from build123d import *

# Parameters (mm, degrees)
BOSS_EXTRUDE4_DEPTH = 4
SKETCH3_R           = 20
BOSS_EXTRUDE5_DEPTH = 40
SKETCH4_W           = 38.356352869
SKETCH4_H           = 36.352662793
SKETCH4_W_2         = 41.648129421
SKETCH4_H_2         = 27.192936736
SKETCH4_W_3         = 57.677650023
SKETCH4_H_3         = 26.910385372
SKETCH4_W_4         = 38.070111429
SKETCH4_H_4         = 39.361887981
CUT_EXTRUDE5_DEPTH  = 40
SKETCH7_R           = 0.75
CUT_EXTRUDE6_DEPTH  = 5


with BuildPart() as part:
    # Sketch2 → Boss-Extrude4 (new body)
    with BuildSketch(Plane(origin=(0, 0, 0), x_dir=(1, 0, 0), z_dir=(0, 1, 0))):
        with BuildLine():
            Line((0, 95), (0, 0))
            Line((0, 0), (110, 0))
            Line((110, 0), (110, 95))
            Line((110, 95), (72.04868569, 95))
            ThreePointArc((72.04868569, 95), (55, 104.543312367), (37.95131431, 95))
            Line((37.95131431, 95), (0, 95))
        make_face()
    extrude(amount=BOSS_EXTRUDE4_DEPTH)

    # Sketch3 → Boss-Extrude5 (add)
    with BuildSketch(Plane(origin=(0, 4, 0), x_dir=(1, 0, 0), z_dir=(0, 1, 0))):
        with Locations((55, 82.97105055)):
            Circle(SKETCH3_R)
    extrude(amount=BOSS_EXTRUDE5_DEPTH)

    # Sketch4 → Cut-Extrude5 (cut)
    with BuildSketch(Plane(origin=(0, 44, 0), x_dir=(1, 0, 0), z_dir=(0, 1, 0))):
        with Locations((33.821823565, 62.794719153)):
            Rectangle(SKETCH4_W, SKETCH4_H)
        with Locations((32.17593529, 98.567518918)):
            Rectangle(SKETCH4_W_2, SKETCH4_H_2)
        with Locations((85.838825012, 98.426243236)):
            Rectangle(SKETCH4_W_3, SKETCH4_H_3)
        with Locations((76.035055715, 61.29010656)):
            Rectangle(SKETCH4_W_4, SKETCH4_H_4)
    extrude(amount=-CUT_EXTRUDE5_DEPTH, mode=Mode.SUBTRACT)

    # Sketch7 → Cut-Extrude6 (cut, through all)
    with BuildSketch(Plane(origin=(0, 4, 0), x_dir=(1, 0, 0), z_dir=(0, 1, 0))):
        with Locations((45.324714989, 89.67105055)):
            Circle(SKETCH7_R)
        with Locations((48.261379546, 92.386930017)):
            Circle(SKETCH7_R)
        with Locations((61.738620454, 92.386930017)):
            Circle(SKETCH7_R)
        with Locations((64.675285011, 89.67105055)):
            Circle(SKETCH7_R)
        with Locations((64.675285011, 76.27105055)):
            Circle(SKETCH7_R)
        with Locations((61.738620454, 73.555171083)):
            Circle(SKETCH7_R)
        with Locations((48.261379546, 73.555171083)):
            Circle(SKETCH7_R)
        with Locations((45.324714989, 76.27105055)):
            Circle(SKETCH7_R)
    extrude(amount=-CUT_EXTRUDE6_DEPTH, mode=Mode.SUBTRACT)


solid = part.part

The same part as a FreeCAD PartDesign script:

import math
import FreeCAD as App
import Part
import Sketcher

V = App.Vector

doc = App.newDocument("Part")
body = doc.addObject("PartDesign::Body", "Body")

# Sketch on XZ plane
sketch1 = body.newObject("Sketcher::SketchObject", "Sketch")
sketch1.AttachmentSupport = (doc.getObject("XZ_Plane"), [""])
sketch1.MapMode = "FlatFace"
sketch1.addGeometry([
    Part.LineSegment(V(0, -95, 0), V(0, 0, 0)),  # 0
    Part.LineSegment(V(0, 0, 0), V(110, 0, 0)),  # 1
    Part.LineSegment(V(110, 0, 0), V(110, -95, 0)),  # 2
    Part.LineSegment(V(110, -95, 0), V(72, -95, 0)),  # 3
    Part.ArcOfCircle(Part.Circle(V(55, -85, 0), V(0, 0, 1), 20), math.radians(-148), math.radians(-32)),  # 4
    Part.LineSegment(V(38, -95, 0), V(0, -95, 0)),  # 5
], False)
sketch1.addConstraint([
    Sketcher.Constraint("Coincident", 0, 2, 1, 1),
    Sketcher.Constraint("Coincident", 1, 2, 2, 1),
    Sketcher.Constraint("Coincident", 2, 2, 3, 1),
    Sketcher.Constraint("Coincident", 3, 2, 4, 2),
    Sketcher.Constraint("Coincident", 4, 1, 5, 1),
    Sketcher.Constraint("Coincident", 5, 2, 0, 1),
    Sketcher.Constraint("Vertical", 0),
    Sketcher.Constraint("Horizontal", 1),
    Sketcher.Constraint("Vertical", 2),
    Sketcher.Constraint("Horizontal", 3),
    Sketcher.Constraint("Horizontal", 5),
    Sketcher.Constraint("Coincident", 0, 2, -1, 1),
    Sketcher.Constraint("Horizontal", 3, 2, 4, 1),
    Sketcher.Constraint("Equal", 3, 5),
    Sketcher.Constraint("Radius", 4, 20.0),
    Sketcher.Constraint("DistanceX", 1, 1, 1, 2, 110.0),
    Sketcher.Constraint("DistanceY", 0, 1, 0, 2, 95.0),
    Sketcher.Constraint("DistanceX", 3, 2, 3, 1, 37.951314),
])
pad1 = body.newObject("PartDesign::Pad", "Pad")
pad1.Profile = sketch1
pad1.Length = 4
pad1.Reversed = True

# Sketch on XZ plane
sketch2 = body.newObject("Sketcher::SketchObject", "Sketch001")
sketch2.AttachmentSupport = (doc.getObject("XZ_Plane"), [""])
sketch2.MapMode = "FlatFace"
sketch2.AttachmentOffset = App.Placement(V(0, 0, -4), App.Rotation())
sketch2.addGeometry(Part.Circle(V(55, -83, 0), V(0, 0, 1), 20), False)
sketch2.addConstraint([
    Sketcher.Constraint("Diameter", 0, 40.0),
    Sketcher.Constraint("DistanceX", -1, 1, 0, 3, 55.0),
    Sketcher.Constraint("DistanceY", 0, 3, -1, 1, 82.971051),
])
pad2 = body.newObject("PartDesign::Pad", "Pad001")
pad2.Profile = sketch2
pad2.Length = 40
pad2.Reversed = True

# Sketch on XZ plane
sketch3 = body.newObject("Sketcher::SketchObject", "Sketch002")
sketch3.AttachmentSupport = (doc.getObject("XZ_Plane"), [""])
sketch3.MapMode = "FlatFace"
sketch3.AttachmentOffset = App.Placement(V(0, 0, -44), App.Rotation())
sketch3.addGeometry([
    Part.LineSegment(V(15, -81, 0), V(15, -45, 0)),  # 0
    Part.LineSegment(V(15, -45, 0), V(53, -45, 0)),  # 1
    Part.LineSegment(V(53, -45, 0), V(53, -81, 0)),  # 2
    Part.LineSegment(V(53, -81, 0), V(15, -81, 0)),  # 3
    Part.LineSegment(V(11, -112, 0), V(11, -85, 0)),  # 4
    Part.LineSegment(V(11, -85, 0), V(53, -85, 0)),  # 5
    Part.LineSegment(V(53, -85, 0), V(53, -112, 0)),  # 6
    Part.LineSegment(V(53, -112, 0), V(11, -112, 0)),  # 7
    Part.LineSegment(V(57, -112, 0), V(57, -85, 0)),  # 8
    Part.LineSegment(V(57, -85, 0), V(115, -85, 0)),  # 9
    Part.LineSegment(V(115, -85, 0), V(115, -112, 0)),  # 10
    Part.LineSegment(V(115, -112, 0), V(57, -112, 0)),  # 11
    Part.LineSegment(V(57, -81, 0), V(57, -42, 0)),  # 12
    Part.LineSegment(V(57, -42, 0), V(95, -42, 0)),  # 13
    Part.LineSegment(V(95, -42, 0), V(95, -81, 0)),  # 14
    Part.LineSegment(V(95, -81, 0), V(57, -81, 0)),  # 15
], False)
sketch3.addConstraint([
    Sketcher.Constraint("Coincident", 0, 2, 1, 1),
    Sketcher.Constraint("Coincident", 1, 2, 2, 1),
    Sketcher.Constraint("Coincident", 2, 2, 3, 1),
    Sketcher.Constraint("Coincident", 3, 2, 0, 1),
    Sketcher.Constraint("Coincident", 4, 2, 5, 1),
    Sketcher.Constraint("Coincident", 5, 2, 6, 1),
    Sketcher.Constraint("Coincident", 6, 2, 7, 1),
    Sketcher.Constraint("Coincident", 7, 2, 4, 1),
    Sketcher.Constraint("Coincident", 8, 2, 9, 1),
    Sketcher.Constraint("Coincident", 9, 2, 10, 1),
    Sketcher.Constraint("Coincident", 10, 2, 11, 1),
    Sketcher.Constraint("Coincident", 11, 2, 8, 1),
    Sketcher.Constraint("Coincident", 12, 2, 13, 1),
    Sketcher.Constraint("Coincident", 13, 2, 14, 1),
    Sketcher.Constraint("Coincident", 14, 2, 15, 1),
    Sketcher.Constraint("Coincident", 15, 2, 12, 1),
    Sketcher.Constraint("Vertical", 0),
    Sketcher.Constraint("Horizontal", 1),
    Sketcher.Constraint("Vertical", 2),
    Sketcher.Constraint("Horizontal", 3),
    Sketcher.Constraint("Vertical", 4),
    Sketcher.Constraint("Horizontal", 5),
    Sketcher.Constraint("Vertical", 6),
    Sketcher.Constraint("Horizontal", 7),
    Sketcher.Constraint("Vertical", 8),
    Sketcher.Constraint("Horizontal", 9),
    Sketcher.Constraint("Vertical", 10),
    Sketcher.Constraint("Horizontal", 11),
    Sketcher.Constraint("Vertical", 12),
    Sketcher.Constraint("Horizontal", 13),
    Sketcher.Constraint("Vertical", 14),
    Sketcher.Constraint("Horizontal", 15),
    Sketcher.Constraint("Horizontal", 5, 2, 8, 2),
    Sketcher.Constraint("Horizontal", 3, 2, 14, 2),
    Sketcher.Constraint("Vertical", 2, 2, 5, 2),
    Sketcher.Constraint("Vertical", 11, 2, 12, 2),
    Sketcher.Constraint("DistanceX", -1, 1, 1, 2, 53.0),
    Sketcher.Constraint("DistanceX", -1, 1, 8, 2, 57.0),
    Sketcher.Constraint("DistanceY", 4, 2, 3, 2, 4.0),
    Sketcher.Constraint("DistanceX", 5, 1, 5, 2, 41.648129),
    Sketcher.Constraint("DistanceX", 9, 1, 9, 2, 57.67765),
    Sketcher.Constraint("DistanceX", 13, 1, 13, 2, 38.070111),
    Sketcher.Constraint("DistanceY", 6, 2, 1, 2, 67.5456),
    Sketcher.Constraint("DistanceX", 1, 1, 1, 2, 38.356353),
    Sketcher.Constraint("DistanceY", 0, 1, 0, 2, 36.352663),
    Sketcher.Constraint("DistanceY", 8, 1, 8, 2, 26.910385),
    Sketcher.Constraint("DistanceY", 12, 1, 12, 2, 39.361888),
    Sketcher.Constraint("DistanceY", 2, 2, -1, 1, 80.971051),
])
pocket1 = body.newObject("PartDesign::Pocket", "Pocket")
pocket1.Profile = sketch3
pocket1.Length = 40
pocket1.Reversed = True

# Sketch on XZ plane
sketch4 = body.newObject("Sketcher::SketchObject", "Sketch003")
sketch4.AttachmentSupport = (doc.getObject("XZ_Plane"), [""])
sketch4.MapMode = "FlatFace"
sketch4.AttachmentOffset = App.Placement(V(0, 0, -4), App.Rotation())
sketch4.addGeometry([
    Part.Circle(V(45.3, -89.7, 0), V(0, 0, 1), 0.8),  # 0
    Part.Circle(V(48.3, -92.4, 0), V(0, 0, 1), 0.8),  # 1
    Part.Circle(V(61.7, -92.4, 0), V(0, 0, 1), 0.8),  # 2
    Part.Circle(V(64.7, -89.7, 0), V(0, 0, 1), 0.8),  # 3
    Part.Circle(V(64.7, -76.3, 0), V(0, 0, 1), 0.8),  # 4
    Part.Circle(V(61.7, -73.6, 0), V(0, 0, 1), 0.8),  # 5
    Part.Circle(V(48.3, -73.6, 0), V(0, 0, 1), 0.8),  # 6
    Part.Circle(V(45.3, -76.3, 0), V(0, 0, 1), 0.8),  # 7
], False)
sketch4.addConstraint([
    Sketcher.Constraint("Equal", 0, 1),
    Sketcher.Constraint("Equal", 1, 2),
    Sketcher.Constraint("Equal", 2, 3),
    Sketcher.Constraint("Equal", 3, 4),
    Sketcher.Constraint("Equal", 4, 5),
    Sketcher.Constraint("Equal", 5, 6),
    Sketcher.Constraint("Equal", 6, 7),
    Sketcher.Constraint("Horizontal", 1, 3, 2, 3),
    Sketcher.Constraint("Horizontal", 0, 3, 3, 3),
    Sketcher.Constraint("Horizontal", 5, 3, 6, 3),
    Sketcher.Constraint("Horizontal", 4, 3, 7, 3),
    Sketcher.Constraint("Vertical", 3, 3, 4, 3),
    Sketcher.Constraint("Vertical", 2, 3, 5, 3),
    Sketcher.Constraint("Vertical", 1, 3, 6, 3),
    Sketcher.Constraint("Vertical", 0, 3, 7, 3),
    Sketcher.Constraint("Diameter", 0, 1.5),
    Sketcher.Constraint("DistanceY", 3, 3, 4, 3, 13.4),
    Sketcher.Constraint("DistanceY", 0, 3, -1, 1, 89.671051),
    Sketcher.Constraint("DistanceX", -1, 1, 1, 3, 48.26138),
    Sketcher.Constraint("DistanceY", 1, 3, -1, 1, 92.38693),
    Sketcher.Constraint("DistanceX", -1, 1, 2, 3, 61.73862),
    Sketcher.Constraint("DistanceY", 5, 3, -1, 1, 73.555171),
    Sketcher.Constraint("DistanceX", 0, 3, 3, 3, 19.35057),
    Sketcher.Constraint("DistanceX", -1, 1, 0, 3, 45.324715),
])
pocket2 = body.newObject("PartDesign::Pocket", "Pocket001")
pocket2.Profile = sketch4
pocket2.Type = "ThroughAll"
pocket2.Reversed = True

doc.recompute()
